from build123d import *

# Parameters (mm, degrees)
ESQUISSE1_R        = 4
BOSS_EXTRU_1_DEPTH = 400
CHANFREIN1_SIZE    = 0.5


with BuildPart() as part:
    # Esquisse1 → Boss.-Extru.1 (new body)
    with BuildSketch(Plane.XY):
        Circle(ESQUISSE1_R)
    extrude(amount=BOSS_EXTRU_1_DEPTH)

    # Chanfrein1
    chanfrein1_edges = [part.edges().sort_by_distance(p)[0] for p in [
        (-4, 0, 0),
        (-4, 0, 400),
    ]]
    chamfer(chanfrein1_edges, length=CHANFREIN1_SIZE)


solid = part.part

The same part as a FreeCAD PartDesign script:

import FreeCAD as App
import Part
import Sketcher
from FreeCAD import Vector
Q = App.Units.Quantity


def edges_at(feature, points):
    """Names of the edges that pass closest to the given points."""
    edges = feature.Shape.Edges
    near = lambda p: min(range(len(edges)), key=lambda i: edges[i].distToShape(Part.Vertex(*p))[0])
    return sorted({f"Edge{near(p) + 1}" for p in points})

doc = App.newDocument("Part")
body = doc.addObject("PartDesign::Body", "Body")

# Sketch on XY plane
sketch1 = doc.addObject("Sketcher::SketchObject", "Sketch")
body.addObject(sketch1)
sketch1.AttachmentSupport = (doc.XY_Plane, [""])
sketch1.MapMode = "FlatFace"
sketch1.addGeometry(Part.Circle(Vector(0, 0, 0), Vector(0, 0, 1), 4), False)
sketch1.addConstraint([
    Sketcher.Constraint("Coincident", 0, 3, -1, 1),
    Sketcher.Constraint("Diameter", 0, Q("8 mm")),
])
pad1 = doc.addObject("PartDesign::Pad", "Pad")
body.addObject(pad1)
pad1.Profile = sketch1
pad1.Length = 400
doc.recompute()

chamfer = doc.addObject("PartDesign::Chamfer", "Chamfer")
body.addObject(chamfer)
chamfer.Base = (pad1, edges_at(pad1, [(-4, 0, 0), (-4, 0, 400)]))
chamfer.Size = 0.5

doc.recompute()
